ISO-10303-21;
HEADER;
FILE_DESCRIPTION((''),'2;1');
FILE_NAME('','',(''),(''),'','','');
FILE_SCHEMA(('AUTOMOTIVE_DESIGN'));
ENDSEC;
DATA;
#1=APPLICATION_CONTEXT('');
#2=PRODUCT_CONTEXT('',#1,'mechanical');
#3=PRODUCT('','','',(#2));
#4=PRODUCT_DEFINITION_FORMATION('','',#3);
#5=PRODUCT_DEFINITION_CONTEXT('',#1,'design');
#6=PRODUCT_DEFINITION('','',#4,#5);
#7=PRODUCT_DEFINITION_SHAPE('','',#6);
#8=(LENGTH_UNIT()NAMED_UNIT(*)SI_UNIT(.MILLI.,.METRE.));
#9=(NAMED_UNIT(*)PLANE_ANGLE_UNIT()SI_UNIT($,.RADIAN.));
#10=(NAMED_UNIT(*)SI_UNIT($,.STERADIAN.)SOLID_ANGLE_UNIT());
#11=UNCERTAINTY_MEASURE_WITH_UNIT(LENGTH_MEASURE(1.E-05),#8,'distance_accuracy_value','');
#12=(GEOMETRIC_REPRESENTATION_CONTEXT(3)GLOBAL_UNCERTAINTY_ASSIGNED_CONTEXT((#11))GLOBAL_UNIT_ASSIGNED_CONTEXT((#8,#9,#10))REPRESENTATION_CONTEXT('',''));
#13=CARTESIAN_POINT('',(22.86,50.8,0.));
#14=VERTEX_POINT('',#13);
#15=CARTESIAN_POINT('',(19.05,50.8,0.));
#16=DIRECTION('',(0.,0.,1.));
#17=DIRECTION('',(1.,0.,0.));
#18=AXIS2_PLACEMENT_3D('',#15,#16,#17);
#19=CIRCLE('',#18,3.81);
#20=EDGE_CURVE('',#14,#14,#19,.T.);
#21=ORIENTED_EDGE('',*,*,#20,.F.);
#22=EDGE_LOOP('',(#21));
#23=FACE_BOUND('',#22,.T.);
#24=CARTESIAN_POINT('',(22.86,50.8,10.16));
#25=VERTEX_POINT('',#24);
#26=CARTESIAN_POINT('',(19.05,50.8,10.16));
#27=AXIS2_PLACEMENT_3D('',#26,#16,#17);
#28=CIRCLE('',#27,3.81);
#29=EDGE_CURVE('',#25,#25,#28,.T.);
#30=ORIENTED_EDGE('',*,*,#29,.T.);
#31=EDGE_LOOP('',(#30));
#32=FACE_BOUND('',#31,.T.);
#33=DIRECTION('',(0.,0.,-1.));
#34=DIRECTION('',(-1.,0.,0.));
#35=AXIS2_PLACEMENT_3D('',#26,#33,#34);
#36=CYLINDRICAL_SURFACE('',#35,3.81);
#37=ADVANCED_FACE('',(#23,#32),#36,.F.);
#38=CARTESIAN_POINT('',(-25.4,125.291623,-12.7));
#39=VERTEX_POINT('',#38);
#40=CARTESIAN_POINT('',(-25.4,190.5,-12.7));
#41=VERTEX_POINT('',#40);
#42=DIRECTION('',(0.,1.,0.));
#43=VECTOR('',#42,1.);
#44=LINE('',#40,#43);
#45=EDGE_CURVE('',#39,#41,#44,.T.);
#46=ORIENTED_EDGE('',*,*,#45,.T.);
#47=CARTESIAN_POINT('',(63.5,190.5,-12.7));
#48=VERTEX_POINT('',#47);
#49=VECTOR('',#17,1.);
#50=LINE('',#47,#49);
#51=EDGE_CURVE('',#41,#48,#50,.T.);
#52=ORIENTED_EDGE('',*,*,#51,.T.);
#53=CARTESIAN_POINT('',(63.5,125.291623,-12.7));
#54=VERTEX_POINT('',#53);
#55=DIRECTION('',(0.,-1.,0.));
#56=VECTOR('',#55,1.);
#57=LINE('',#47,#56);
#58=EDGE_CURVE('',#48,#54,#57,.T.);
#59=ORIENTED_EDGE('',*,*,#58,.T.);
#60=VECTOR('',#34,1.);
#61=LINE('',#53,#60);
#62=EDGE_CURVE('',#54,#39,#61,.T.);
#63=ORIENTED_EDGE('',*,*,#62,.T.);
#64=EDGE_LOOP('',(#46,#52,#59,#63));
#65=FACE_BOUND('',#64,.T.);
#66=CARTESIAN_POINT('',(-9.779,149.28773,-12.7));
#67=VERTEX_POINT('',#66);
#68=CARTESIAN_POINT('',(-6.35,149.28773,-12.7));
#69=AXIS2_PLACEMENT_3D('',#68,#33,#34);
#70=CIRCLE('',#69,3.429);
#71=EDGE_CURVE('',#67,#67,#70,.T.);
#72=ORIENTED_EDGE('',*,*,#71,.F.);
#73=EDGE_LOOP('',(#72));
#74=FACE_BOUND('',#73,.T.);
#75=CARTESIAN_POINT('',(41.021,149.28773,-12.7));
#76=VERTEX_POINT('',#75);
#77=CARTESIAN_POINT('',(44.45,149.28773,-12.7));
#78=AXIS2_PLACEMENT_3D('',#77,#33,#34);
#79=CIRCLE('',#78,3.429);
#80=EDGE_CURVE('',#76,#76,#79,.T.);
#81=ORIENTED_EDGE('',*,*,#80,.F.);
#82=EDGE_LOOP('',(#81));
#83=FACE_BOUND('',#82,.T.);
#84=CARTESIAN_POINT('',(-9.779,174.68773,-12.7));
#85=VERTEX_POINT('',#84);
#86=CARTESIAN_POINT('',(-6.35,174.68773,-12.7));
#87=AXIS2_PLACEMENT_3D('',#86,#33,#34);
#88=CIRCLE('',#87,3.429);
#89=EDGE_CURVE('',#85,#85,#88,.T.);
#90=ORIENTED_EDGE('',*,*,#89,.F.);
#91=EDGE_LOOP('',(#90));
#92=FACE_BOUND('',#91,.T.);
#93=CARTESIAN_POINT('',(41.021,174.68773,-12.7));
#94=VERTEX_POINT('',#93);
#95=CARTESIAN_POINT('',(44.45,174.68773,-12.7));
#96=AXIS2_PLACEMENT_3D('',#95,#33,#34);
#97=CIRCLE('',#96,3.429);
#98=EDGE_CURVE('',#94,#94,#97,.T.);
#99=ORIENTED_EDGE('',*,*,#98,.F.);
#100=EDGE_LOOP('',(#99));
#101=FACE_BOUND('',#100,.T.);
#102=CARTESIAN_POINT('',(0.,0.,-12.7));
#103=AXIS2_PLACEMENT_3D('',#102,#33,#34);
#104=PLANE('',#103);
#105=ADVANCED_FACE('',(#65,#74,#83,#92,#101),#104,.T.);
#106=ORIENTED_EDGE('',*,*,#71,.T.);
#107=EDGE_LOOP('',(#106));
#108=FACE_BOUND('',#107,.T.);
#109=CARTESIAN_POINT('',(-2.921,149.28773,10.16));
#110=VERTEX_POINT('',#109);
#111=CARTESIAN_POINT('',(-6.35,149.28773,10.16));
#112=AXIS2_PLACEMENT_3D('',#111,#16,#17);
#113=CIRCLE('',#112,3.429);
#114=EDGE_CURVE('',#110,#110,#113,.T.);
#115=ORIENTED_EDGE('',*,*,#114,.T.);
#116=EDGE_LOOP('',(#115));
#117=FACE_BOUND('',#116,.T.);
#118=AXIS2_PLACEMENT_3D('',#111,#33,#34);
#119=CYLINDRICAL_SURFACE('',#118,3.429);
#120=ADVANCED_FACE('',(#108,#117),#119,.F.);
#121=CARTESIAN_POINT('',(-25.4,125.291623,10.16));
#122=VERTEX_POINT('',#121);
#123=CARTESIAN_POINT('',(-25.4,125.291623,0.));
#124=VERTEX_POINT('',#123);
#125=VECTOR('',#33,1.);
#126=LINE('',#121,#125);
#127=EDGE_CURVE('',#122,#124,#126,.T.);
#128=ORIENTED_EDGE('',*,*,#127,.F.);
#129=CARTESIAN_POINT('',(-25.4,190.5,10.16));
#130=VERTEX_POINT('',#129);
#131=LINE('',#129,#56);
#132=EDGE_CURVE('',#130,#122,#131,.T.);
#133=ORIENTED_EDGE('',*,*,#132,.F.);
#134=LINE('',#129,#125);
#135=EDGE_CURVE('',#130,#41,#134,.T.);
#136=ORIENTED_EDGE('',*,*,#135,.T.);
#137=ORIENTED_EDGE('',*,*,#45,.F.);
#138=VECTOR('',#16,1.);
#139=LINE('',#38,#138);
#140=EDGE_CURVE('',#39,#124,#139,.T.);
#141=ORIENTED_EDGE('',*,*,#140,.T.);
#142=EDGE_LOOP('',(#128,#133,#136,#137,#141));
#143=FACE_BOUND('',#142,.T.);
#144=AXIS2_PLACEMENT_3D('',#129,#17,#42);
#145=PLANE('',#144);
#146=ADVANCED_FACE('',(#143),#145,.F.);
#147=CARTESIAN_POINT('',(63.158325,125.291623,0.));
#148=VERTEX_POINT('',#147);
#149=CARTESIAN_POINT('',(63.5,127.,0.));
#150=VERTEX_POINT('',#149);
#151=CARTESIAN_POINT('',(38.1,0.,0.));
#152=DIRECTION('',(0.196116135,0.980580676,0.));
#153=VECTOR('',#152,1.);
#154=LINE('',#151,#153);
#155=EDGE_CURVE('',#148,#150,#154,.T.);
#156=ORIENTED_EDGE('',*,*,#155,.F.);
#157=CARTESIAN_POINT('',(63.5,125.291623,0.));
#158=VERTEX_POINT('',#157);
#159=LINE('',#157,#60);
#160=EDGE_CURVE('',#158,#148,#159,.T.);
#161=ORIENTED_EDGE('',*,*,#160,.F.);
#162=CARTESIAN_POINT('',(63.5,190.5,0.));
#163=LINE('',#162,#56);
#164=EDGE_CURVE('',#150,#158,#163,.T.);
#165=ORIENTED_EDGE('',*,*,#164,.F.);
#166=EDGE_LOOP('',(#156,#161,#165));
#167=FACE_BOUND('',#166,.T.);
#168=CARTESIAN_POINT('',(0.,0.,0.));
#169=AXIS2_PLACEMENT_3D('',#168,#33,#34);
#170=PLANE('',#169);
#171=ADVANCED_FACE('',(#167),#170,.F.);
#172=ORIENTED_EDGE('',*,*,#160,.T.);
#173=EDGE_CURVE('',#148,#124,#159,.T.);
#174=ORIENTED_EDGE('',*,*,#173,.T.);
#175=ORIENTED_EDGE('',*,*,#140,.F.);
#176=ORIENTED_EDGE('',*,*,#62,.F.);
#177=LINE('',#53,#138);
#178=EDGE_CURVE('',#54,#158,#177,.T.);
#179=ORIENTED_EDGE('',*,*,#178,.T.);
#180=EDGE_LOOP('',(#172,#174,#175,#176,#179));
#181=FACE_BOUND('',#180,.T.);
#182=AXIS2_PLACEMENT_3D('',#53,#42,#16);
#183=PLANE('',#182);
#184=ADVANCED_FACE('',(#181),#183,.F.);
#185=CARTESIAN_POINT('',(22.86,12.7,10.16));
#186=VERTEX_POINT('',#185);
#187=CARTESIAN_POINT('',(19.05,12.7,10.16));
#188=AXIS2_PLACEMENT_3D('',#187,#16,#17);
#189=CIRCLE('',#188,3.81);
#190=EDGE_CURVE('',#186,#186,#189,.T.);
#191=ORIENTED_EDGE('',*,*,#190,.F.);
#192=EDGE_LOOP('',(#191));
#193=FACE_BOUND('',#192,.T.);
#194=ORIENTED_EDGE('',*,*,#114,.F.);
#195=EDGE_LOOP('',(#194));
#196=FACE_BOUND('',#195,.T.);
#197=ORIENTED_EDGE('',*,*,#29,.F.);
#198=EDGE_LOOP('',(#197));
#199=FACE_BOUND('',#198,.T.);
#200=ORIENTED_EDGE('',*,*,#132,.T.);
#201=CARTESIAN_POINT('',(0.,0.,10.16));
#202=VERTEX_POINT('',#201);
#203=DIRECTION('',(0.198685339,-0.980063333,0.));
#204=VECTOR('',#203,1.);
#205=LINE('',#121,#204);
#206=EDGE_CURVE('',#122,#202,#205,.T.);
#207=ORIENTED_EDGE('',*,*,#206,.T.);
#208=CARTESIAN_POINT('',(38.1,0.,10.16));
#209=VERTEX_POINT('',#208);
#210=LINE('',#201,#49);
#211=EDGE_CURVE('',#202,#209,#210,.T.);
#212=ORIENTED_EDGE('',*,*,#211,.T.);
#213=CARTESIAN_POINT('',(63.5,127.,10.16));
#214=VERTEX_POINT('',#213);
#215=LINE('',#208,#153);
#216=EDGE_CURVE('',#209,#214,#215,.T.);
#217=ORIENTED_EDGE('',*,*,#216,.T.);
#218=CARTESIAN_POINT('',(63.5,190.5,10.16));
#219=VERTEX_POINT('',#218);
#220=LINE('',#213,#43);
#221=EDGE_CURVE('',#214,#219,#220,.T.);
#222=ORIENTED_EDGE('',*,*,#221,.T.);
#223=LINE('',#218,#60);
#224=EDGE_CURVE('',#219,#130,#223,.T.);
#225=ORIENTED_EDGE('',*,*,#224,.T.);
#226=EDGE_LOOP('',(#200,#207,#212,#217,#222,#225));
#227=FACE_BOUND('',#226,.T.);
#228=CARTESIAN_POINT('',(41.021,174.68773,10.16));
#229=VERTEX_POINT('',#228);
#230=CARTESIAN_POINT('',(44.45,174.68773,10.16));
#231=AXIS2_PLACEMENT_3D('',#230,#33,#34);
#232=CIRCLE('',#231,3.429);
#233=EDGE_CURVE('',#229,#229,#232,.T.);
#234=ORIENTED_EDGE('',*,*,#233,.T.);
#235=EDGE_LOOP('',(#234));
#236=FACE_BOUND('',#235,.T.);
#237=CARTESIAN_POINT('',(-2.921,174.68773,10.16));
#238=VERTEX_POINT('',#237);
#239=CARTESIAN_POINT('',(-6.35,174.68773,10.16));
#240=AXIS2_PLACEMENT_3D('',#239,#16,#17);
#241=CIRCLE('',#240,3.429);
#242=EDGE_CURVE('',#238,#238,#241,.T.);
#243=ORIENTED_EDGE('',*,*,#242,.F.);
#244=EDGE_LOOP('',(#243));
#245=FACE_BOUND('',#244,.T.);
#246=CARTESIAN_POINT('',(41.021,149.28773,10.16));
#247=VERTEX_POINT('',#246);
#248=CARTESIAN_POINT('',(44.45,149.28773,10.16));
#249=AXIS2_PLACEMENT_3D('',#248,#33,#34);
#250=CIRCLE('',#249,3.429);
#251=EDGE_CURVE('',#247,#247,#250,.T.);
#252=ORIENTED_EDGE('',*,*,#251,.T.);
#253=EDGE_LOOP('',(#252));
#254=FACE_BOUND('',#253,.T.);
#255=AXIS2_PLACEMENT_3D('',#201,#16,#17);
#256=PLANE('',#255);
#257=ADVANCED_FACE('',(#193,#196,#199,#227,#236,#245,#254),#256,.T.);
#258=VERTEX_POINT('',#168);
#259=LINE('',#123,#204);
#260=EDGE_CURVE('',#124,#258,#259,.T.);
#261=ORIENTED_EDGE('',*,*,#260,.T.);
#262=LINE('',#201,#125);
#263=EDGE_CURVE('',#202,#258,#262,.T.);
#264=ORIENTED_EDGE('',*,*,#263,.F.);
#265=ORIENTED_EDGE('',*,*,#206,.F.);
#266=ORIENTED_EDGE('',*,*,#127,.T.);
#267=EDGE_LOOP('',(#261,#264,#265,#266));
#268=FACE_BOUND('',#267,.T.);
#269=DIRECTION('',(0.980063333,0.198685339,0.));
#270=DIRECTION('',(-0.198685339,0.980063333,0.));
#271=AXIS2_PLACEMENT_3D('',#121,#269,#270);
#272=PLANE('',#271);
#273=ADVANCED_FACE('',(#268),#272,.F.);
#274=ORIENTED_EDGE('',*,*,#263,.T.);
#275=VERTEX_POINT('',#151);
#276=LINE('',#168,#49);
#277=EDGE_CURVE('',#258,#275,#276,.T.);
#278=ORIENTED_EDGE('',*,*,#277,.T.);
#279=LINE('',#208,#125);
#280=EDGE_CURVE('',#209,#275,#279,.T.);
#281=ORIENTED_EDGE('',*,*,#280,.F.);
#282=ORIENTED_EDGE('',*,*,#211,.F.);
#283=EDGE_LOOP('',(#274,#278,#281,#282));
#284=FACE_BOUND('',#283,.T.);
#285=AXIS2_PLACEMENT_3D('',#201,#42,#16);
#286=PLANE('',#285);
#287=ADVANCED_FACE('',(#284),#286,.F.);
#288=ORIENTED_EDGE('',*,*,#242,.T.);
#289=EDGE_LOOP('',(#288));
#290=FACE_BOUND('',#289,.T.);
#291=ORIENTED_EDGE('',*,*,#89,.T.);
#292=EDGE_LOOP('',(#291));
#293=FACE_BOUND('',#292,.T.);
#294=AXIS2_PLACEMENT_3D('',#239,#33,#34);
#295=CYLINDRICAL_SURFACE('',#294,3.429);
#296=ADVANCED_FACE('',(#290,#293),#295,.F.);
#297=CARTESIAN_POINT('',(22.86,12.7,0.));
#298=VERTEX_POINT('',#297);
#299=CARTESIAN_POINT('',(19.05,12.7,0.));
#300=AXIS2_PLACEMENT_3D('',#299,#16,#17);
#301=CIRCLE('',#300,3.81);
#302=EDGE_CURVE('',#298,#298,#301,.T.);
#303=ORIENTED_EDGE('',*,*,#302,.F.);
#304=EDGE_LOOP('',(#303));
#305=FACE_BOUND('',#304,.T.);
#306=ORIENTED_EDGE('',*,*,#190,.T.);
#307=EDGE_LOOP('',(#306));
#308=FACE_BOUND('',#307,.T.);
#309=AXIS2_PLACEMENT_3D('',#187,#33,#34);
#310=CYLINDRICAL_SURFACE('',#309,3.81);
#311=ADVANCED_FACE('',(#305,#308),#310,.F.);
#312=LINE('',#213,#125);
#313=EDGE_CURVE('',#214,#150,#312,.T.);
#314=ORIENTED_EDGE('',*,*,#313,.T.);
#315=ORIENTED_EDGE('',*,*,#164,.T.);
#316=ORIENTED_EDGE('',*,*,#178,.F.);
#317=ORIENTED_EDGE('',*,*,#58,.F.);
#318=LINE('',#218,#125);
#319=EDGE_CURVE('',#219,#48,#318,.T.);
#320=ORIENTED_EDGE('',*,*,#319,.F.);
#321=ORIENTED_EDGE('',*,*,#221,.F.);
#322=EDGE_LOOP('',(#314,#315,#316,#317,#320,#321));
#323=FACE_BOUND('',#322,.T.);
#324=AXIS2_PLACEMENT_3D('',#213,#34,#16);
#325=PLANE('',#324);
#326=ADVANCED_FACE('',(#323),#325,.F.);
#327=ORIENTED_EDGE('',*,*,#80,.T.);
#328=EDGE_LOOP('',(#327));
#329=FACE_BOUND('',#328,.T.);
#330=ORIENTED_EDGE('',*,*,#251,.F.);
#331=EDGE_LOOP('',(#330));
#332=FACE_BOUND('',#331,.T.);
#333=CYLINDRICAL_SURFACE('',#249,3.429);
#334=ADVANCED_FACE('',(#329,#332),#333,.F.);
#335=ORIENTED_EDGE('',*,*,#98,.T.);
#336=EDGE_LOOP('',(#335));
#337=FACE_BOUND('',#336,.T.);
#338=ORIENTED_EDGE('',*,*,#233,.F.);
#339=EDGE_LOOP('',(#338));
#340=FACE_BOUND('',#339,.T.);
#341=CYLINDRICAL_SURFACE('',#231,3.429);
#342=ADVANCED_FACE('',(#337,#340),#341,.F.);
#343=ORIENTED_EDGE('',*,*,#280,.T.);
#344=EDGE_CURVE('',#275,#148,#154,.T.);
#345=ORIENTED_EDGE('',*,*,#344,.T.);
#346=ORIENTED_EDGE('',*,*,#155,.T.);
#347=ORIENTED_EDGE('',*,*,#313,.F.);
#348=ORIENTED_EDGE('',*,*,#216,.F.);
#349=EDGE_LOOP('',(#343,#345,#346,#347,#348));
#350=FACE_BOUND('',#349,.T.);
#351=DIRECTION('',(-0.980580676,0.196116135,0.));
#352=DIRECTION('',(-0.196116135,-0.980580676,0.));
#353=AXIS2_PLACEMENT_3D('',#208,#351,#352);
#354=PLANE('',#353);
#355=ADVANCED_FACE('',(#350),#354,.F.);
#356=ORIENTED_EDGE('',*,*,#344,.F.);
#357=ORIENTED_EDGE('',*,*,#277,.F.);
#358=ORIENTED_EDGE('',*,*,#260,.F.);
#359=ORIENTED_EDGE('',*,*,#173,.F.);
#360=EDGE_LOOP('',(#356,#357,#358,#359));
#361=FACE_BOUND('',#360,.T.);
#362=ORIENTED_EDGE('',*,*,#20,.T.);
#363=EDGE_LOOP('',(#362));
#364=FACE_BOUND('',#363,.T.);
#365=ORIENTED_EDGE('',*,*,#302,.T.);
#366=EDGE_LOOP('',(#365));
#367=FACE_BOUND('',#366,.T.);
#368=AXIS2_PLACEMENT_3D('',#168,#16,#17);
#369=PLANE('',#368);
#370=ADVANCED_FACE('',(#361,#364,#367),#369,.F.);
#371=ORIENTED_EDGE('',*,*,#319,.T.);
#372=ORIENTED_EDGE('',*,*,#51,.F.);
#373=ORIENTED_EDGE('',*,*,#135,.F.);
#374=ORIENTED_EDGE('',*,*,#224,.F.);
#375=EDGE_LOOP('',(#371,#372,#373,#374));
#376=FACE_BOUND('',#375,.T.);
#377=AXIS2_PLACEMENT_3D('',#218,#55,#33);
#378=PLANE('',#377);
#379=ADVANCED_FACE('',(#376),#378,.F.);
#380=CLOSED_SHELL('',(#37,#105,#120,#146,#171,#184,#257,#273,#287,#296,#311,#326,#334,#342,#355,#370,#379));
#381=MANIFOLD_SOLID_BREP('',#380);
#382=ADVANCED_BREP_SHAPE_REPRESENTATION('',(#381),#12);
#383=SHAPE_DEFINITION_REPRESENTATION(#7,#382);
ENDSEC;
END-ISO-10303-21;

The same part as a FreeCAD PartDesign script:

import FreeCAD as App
import Part
import Sketcher

V = App.Vector
Q = App.Units.Quantity

doc = App.newDocument("Part")
body = doc.addObject("PartDesign::Body", "Body")

sketch1 = body.newObject("Sketcher::SketchObject", "Sketch")
sketch1.AttachmentSupport = (doc.getObject("XY_Plane"), [""])
sketch1.MapMode = "FlatFace"
sketch1.addGeometry(Part.LineSegment(V(0, 0, 0), V(38.1, 0, 0)), False)
sketch1.addGeometry(Part.LineSegment(V(38.1, 0, 0), V(63.5, 127, 0)), False)
sketch1.addGeometry(Part.LineSegment(V(63.5, 127, 0), V(63.5, 190.5, 0)), False)
sketch1.addGeometry(Part.LineSegment(V(63.5, 190.5, 0), V(-25.4, 190.5, 0)), False)
sketch1.addGeometry(Part.LineSegment(V(-25.4, 190.5, 0), V(-25.4, 125.3, 0)), False)
sketch1.addGeometry(Part.LineSegment(V(-25.4, 125.3, 0), V(0, 0, 0)), False)
sketch1.addGeometry(Part.Circle(V(19.1, 12.7, 0), V(0, 0, 1), 3.8), False)
sketch1.addGeometry(Part.Circle(V(19.1, 50.8, 0), V(0, 0, 1), 3.8), False)
sketch1.addGeometry(Part.Circle(V(-6.3, 149.3, 0), V(0, 0, 1), 3.4), False)
sketch1.addGeometry(Part.Circle(V(-6.3, 174.7, 0), V(0, 0, 1), 3.4), False)
sketch1.addGeometry(Part.Circle(V(44.5, 149.3, 0), V(0, 0, 1), 3.4), False)
sketch1.addGeometry(Part.Circle(V(44.5, 174.7, 0), V(0, 0, 1), 3.4), False)
sketch1.addConstraint(Sketcher.Constraint("Coincident", 0, 2, 1, 1))
sketch1.addConstraint(Sketcher.Constraint("Coincident", 1, 2, 2, 1))
sketch1.addConstraint(Sketcher.Constraint("Coincident", 2, 2, 3, 1))
sketch1.addConstraint(Sketcher.Constraint("Coincident", 3, 2, 4, 1))
sketch1.addConstraint(Sketcher.Constraint("Coincident", 4, 2, 5, 1))
sketch1.addConstraint(Sketcher.Constraint("Coincident", 5, 2, 0, 1))
sketch1.addConstraint(Sketcher.Constraint("Horizontal", 0))
sketch1.addConstraint(Sketcher.Constraint("Vertical", 2))
sketch1.addConstraint(Sketcher.Constraint("Horizontal", 3))
sketch1.addConstraint(Sketcher.Constraint("Vertical", 4))
sketch1.addConstraint(Sketcher.Constraint("Coincident", 5, 2, -1, 1))
sketch1.addConstraint(Sketcher.Constraint("Equal", 6, 7))
sketch1.addConstraint(Sketcher.Constraint("Equal", 8, 9))
sketch1.addConstraint(Sketcher.Constraint("Equal", 9, 10))
sketch1.addConstraint(Sketcher.Constraint("Equal", 10, 11))
sketch1.addConstraint(Sketcher.Constraint("Horizontal", 8, 3, 10, 3))
sketch1.addConstraint(Sketcher.Constraint("Horizontal", 9, 3, 11, 3))
sketch1.addConstraint(Sketcher.Constraint("Vertical", 6, 3, 7, 3))
sketch1.addConstraint(Sketcher.Constraint("Vertical", 8, 3, 9, 3))
sketch1.addConstraint(Sketcher.Constraint("Vertical", 10, 3, 11, 3))
sketch1.addConstraint(Sketcher.Constraint("Diameter", 6, Q("0.3 in")))
sketch1.addConstraint(Sketcher.Constraint("Diameter", 8, Q("0.27 in")))
sketch1.addConstraint(Sketcher.Constraint("DistanceX", 0, 1, 0, 2, Q("1.5 in")))
sketch1.addConstraint(Sketcher.Constraint("DistanceX", 3, 2, 3, 1, Q("3.5 in")))
sketch1.addConstraint(Sketcher.Constraint("DistanceY", 2, 1, 2, 2, Q("2.5 in")))
sketch1.addConstraint(Sketcher.Constraint("DistanceY", -1, 1, 7, 3, Q("2 in")))
sketch1.addConstraint(Sketcher.Constraint("DistanceY", -1, 1, 1, 2, Q("5 in")))
sketch1.addConstraint(Sketcher.Constraint("DistanceX", 3, 2, -1, 1, Q("1 in")))
sketch1.addConstraint(Sketcher.Constraint("DistanceX", 8, 3, 7, 3, Q("1 in")))
sketch1.addConstraint(Sketcher.Constraint("DistanceY", 8, 3, 9, 3, Q("1 in")))
sketch1.addConstraint(Sketcher.Constraint("DistanceX", 8, 3, 10, 3, Q("2 in")))
sketch1.addConstraint(Sketcher.Constraint("DistanceY", -1, 1, 6, 3, Q("0.5 in")))
sketch1.addConstraint(Sketcher.Constraint("DistanceX", -1, 1, 6, 3, Q("0.75 in")))
sketch1.addConstraint(Sketcher.Constraint("DistanceY", 4, 2, 4, 1, Q("65.208377 mm")))
sketch1.addConstraint(Sketcher.Constraint("DistanceY", -1, 1, 8, 3, Q("149.28773 mm")))
pad1 = body.newObject("PartDesign::Pad", "Pad")
pad1.Profile = sketch1
pad1.Length = Q("0.4 in")

sketch2 = body.newObject("Sketcher::SketchObject", "Sketch001")
sketch2.AttachmentSupport = (doc.getObject("XY_Plane"), [""])
sketch2.MapMode = "FlatFace"
sketch2.addGeometry(Part.LineSegment(V(64, 190, 0), V(64, 125, 0)), False)
sketch2.addGeometry(Part.LineSegment(V(64, 125, 0), V(-25, 125, 0)), False)
sketch2.addGeometry(Part.LineSegment(V(-25, 125, 0), V(-25, 190, 0)), False)
sketch2.addGeometry(Part.LineSegment(V(-25, 190, 0), V(64, 190, 0)), False)
sketch2.addConstraint(Sketcher.Constraint("Coincident", 0, 2, 1, 1))
sketch2.addConstraint(Sketcher.Constraint("Coincident", 1, 2, 2, 1))
sketch2.addConstraint(Sketcher.Constraint("Coincident", 2, 2, 3, 1))
sketch2.addConstraint(Sketcher.Constraint("Coincident", 3, 2, 0, 1))
sketch2.addConstraint(Sketcher.Constraint("Vertical", 0))
sketch2.addConstraint(Sketcher.Constraint("Horizontal", 1))
sketch2.addConstraint(Sketcher.Constraint("Vertical", 2))
sketch2.addConstraint(Sketcher.Constraint("Horizontal", 3))
sketch2.addConstraint(Sketcher.Constraint("DistanceX", 1, 2, 1, 1, Q("3.5 in")))
sketch2.addConstraint(Sketcher.Constraint("DistanceX", 1, 2, -1, 1, Q("1 in")))
sketch2.addConstraint(Sketcher.Constraint("DistanceY", -1, 1, 2, 2, Q("7.5 in")))
sketch2.addConstraint(Sketcher.Constraint("DistanceY", 0, 2, 0, 1, Q("65.208377 mm")))
pad2 = body.newObject("PartDesign::Pad", "Pad001")
pad2.Profile = sketch2
pad2.Length = Q("0.5 in")
pad2.Reversed = True

sketch3 = body.newObject("Sketcher::SketchObject", "Sketch002")
sketch3.AttachmentSupport = (doc.getObject("XY_Plane"), [""])
sketch3.MapMode = "FlatFace"
sketch3.AttachmentOffset = App.Placement(V(0, 0, -0.5 * 25.4), App.Rotation())
sketch3.addGeometry(Part.Circle(V(-6.3, 174.7, 0), V(0, 0, 1), 3.4), False)
sketch3.addGeometry(Part.Circle(V(-6.3, 149.3, 0), V(0, 0, 1), 3.4), False)
sketch3.addGeometry(Part.Circle(V(44.5, 149.3, 0), V(0, 0, 1), 3.4), False)
sketch3.addGeometry(Part.Circle(V(44.5, 174.7, 0), V(0, 0, 1), 3.4), False)
sketch3.addConstraint(Sketcher.Constraint("Equal", 0, 1))
sketch3.addConstraint(Sketcher.Constraint("Equal", 1, 2))
sketch3.addConstraint(Sketcher.Constraint("Equal", 2, 3))
sketch3.addConstraint(Sketcher.Constraint("Horizontal", 1, 3, 2, 3))
sketch3.addConstraint(Sketcher.Constraint("Horizontal", 0, 3, 3, 3))
sketch3.addConstraint(Sketcher.Constraint("Vertical", 0, 3, 1, 3))
sketch3.addConstraint(Sketcher.Constraint("Vertical", 2, 3, 3, 3))
sketch3.addConstraint(Sketcher.Constraint("Diameter", 0, Q("0.27 in")))
sketch3.addConstraint(Sketcher.Constraint("DistanceY", 1, 3, 0, 3, Q("1 in")))
sketch3.addConstraint(Sketcher.Constraint("DistanceX", 1, 3, 2, 3, Q("2 in")))
sketch3.addConstraint(Sketcher.Constraint("DistanceX", 0, 3, -1, 1, Q("0.25 in")))
sketch3.addConstraint(Sketcher.Constraint("DistanceY", -1, 1, 0, 3, Q("174.68773 mm")))
pocket1 = body.newObject("PartDesign::Pocket", "Pocket")
pocket1.Profile = sketch3
pocket1.Length = Q("0.5 in")
pocket1.Reversed = True

doc.recompute()
